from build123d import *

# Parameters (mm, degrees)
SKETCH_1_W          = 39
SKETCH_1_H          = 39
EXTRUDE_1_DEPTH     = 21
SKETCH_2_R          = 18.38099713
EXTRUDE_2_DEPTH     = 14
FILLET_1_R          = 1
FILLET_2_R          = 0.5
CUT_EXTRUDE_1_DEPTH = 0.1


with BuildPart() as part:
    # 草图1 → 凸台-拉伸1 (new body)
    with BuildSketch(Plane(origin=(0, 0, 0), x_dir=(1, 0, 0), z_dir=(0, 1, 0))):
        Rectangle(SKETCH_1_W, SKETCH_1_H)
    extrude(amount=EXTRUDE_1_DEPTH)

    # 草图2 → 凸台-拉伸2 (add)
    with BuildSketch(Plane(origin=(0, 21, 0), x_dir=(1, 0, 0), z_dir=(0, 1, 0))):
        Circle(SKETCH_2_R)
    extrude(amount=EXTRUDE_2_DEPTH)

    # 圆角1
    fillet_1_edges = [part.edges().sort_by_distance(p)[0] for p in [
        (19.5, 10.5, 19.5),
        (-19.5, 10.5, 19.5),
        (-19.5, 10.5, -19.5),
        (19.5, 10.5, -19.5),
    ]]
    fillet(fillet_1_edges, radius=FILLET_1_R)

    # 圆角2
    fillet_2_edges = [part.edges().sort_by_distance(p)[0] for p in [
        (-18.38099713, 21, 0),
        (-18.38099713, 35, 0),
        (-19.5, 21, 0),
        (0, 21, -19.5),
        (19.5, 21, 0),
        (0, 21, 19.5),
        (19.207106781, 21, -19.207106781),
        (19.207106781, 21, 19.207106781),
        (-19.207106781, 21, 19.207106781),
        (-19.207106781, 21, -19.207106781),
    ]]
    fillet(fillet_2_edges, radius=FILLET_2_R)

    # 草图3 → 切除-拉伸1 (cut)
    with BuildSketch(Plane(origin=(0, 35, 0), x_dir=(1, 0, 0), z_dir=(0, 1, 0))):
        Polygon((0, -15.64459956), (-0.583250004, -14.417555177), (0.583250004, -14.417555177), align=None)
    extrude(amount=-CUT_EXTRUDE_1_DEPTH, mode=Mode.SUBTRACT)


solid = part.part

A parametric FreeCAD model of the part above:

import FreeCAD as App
import Part
import Sketcher


def edges_at(feature, points):
    """Names of the edges that pass closest to the given points."""
    edges = feature.Shape.Edges
    near = lambda p: min(range(len(edges)), key=lambda i: edges[i].distToShape(Part.Vertex(*p))[0])
    return sorted({f"Edge{near(p) + 1}" for p in points})

doc = App.newDocument("Part")
body = doc.addObject("PartDesign::Body", "Body")

sketch1 = body.newObject("Sketcher::SketchObject", "Sketch")
sketch1.AttachmentSupport = (doc.getObject("XZ_Plane"), [""])
sketch1.MapMode = "FlatFace"
sketch1.addGeometry([
    Part.LineSegment(App.Vector(-20, -20, 0), App.Vector(-20, 20, 0)),
    Part.LineSegment(App.Vector(-20, 20, 0), App.Vector(20, 20, 0)),
    Part.LineSegment(App.Vector(20, 20, 0), App.Vector(20, -20, 0)),
    Part.LineSegment(App.Vector(20, -20, 0), App.Vector(-20, -20, 0)),
], False)
sketch1.addConstraint([
    Sketcher.Constraint("Coincident", 0, 2, 1, 1),
    Sketcher.Constraint("Coincident", 1, 2, 2, 1),
    Sketcher.Constraint("Coincident", 2, 2, 3, 1),
    Sketcher.Constraint("Coincident", 3, 2, 0, 1),
    Sketcher.Constraint("Vertical", 0),
    Sketcher.Constraint("Horizontal", 1),
    Sketcher.Constraint("Vertical", 2),
    Sketcher.Constraint("Horizontal", 3),
    Sketcher.Constraint("Symmetric", 0, 2, 2, 2, -1, 1),
    Sketcher.Constraint("Equal", 3, 0),
    Sketcher.Constraint("DistanceX", 1, 1, 1, 2, 39.0),
])
pad1 = body.newObject("PartDesign::Pad", "Pad")
pad1.Profile = sketch1
pad1.Length = 21
pad1.Reversed = True

sketch2 = body.newObject("Sketcher::SketchObject", "Sketch001")
sketch2.AttachmentSupport = (doc.getObject("XZ_Plane"), [""])
sketch2.MapMode = "FlatFace"
sketch2.AttachmentOffset = App.Placement(App.Vector(0, 0, -21), App.Rotation())
sketch2.addGeometry(Part.Circle(App.Vector(0, 0, 0), App.Vector(0, 0, 1), 18), False)
sketch2.addConstraint([
    Sketcher.Constraint("Coincident", 0, 3, -1, 1),
    Sketcher.Constraint("Diameter", 0, 36.761994),
])
pad2 = body.newObject("PartDesign::Pad", "Pad001")
pad2.Profile = sketch2
pad2.Length = 14
pad2.Reversed = True
doc.recompute()

fillet = body.newObject("PartDesign::Fillet", "Fillet")
fillet.Base = (pad2, edges_at(pad2, [
    (19.5, 10.5, 19.5),
    (-19.5, 10.5, 19.5),
    (-19.5, 10.5, -19.5),
    (19.5, 10.5, -19.5),
]))
fillet.Radius = 1
doc.recompute()

fillet2 = body.newObject("PartDesign::Fillet", "Fillet001")
fillet2.Base = (fillet, edges_at(fillet, [
    (-18.381, 21, 0),
    (-18.381, 35, 0),
    (-19.5, 21, 0),
    (0, 21, -19.5),
    (19.5, 21, 0),
    (0, 21, 19.5),
    (19.207, 21, -19.207),
    (19.207, 21, 19.207),
    (-19.207, 21, 19.207),
    (-19.207, 21, -19.207),
]))
fillet2.Radius = 0.5

sketch3 = body.newObject("Sketcher::SketchObject", "Sketch002")
sketch3.AttachmentSupport = (doc.getObject("XZ_Plane"), [""])
sketch3.MapMode = "FlatFace"
sketch3.AttachmentOffset = App.Placement(App.Vector(0, 0, -35), App.Rotation())
sketch3.addGeometry([
    Part.LineSegment(App.Vector(-0.6, 14.4, 0), App.Vector(0, 15.6, 0)),
    Part.LineSegment(App.Vector(0, 15.6, 0), App.Vector(0.6, 14.4, 0)),
    Part.LineSegment(App.Vector(0.6, 14.4, 0), App.Vector(-0.6, 14.4, 0)),
], False)
sketch3.addConstraint([
    Sketcher.Constraint("Coincident", 0, 2, 1, 1),
    Sketcher.Constraint("Coincident", 1, 2, 2, 1),
    Sketcher.Constraint("Coincident", 2, 2, 0, 1),
    Sketcher.Constraint("Horizontal", 2),
    Sketcher.Constraint("PointOnObject", 0, 2, -2),
    Sketcher.Constraint("Equal", 0, 1),
    Sketcher.Constraint("DistanceX", 2, 2, 2, 1, 1.1665),
    Sketcher.Constraint("DistanceY", -1, 1, 0, 2, 15.6446),
    Sketcher.Constraint("Distance", 0, 1.358609),
])
pocket1 = body.newObject("PartDesign::Pocket", "Pocket")
pocket1.Profile = sketch3
pocket1.Length = 0.1
pocket1.Reversed = True

doc.recompute()
